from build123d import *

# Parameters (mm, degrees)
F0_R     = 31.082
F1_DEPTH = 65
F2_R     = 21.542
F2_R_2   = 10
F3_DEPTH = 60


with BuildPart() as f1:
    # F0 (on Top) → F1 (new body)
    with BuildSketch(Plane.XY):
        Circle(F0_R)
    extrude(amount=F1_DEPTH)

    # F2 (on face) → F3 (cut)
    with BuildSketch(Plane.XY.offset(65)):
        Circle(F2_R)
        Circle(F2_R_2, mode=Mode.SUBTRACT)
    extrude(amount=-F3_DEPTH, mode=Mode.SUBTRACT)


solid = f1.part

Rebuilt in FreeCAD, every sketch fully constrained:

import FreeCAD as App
import Part
import Sketcher

V = App.Vector
Q = App.Units.Quantity

doc = App.newDocument("Part")
body = doc.addObject("PartDesign::Body", "Body")

sketch1 = body.newObject("Sketcher::SketchObject", "Sketch")
sketch1.AttachmentSupport = (doc.getObject("XY_Plane"), [""])
sketch1.MapMode = "FlatFace"
sketch1.addGeometry(Part.Circle(V(0, 0, 0), V(0, 0, 1), 31), False)
sketch1.addConstraint(Sketcher.Constraint("Coincident", 0, 3, -1, 1))
sketch1.addConstraint(Sketcher.Constraint("Diameter", 0, Q("62.164 mm")))
pad1 = body.newObject("PartDesign::Pad", "Pad")
pad1.Profile = sketch1
pad1.Length = 65

sketch2 = body.newObject("Sketcher::SketchObject", "Sketch001")
sketch2.AttachmentSupport = (doc.getObject("XY_Plane"), [""])
sketch2.MapMode = "FlatFace"
sketch2.AttachmentOffset = App.Placement(V(0, 0, 65), App.Rotation())
sketch2.addGeometry(Part.Circle(V(0, 0, 0), V(0, 0, 1), 22), False)
sketch2.addGeometry(Part.Circle(V(0, 0, 0), V(0, 0, 1), 10), False)
sketch2.addConstraint(Sketcher.Constraint("Coincident", 0, 3, -1, 1))
sketch2.addConstraint(Sketcher.Constraint("Coincident", 1, 3, -1, 1))
sketch2.addConstraint(Sketcher.Constraint("Diameter", 1, Q("20 mm")))
sketch2.addConstraint(Sketcher.Constraint("Diameter", 0, Q("43.084 mm")))
pocket1 = body.newObject("PartDesign::Pocket", "Pocket")
pocket1.Profile = sketch2
pocket1.Length = 60

doc.recompute()
